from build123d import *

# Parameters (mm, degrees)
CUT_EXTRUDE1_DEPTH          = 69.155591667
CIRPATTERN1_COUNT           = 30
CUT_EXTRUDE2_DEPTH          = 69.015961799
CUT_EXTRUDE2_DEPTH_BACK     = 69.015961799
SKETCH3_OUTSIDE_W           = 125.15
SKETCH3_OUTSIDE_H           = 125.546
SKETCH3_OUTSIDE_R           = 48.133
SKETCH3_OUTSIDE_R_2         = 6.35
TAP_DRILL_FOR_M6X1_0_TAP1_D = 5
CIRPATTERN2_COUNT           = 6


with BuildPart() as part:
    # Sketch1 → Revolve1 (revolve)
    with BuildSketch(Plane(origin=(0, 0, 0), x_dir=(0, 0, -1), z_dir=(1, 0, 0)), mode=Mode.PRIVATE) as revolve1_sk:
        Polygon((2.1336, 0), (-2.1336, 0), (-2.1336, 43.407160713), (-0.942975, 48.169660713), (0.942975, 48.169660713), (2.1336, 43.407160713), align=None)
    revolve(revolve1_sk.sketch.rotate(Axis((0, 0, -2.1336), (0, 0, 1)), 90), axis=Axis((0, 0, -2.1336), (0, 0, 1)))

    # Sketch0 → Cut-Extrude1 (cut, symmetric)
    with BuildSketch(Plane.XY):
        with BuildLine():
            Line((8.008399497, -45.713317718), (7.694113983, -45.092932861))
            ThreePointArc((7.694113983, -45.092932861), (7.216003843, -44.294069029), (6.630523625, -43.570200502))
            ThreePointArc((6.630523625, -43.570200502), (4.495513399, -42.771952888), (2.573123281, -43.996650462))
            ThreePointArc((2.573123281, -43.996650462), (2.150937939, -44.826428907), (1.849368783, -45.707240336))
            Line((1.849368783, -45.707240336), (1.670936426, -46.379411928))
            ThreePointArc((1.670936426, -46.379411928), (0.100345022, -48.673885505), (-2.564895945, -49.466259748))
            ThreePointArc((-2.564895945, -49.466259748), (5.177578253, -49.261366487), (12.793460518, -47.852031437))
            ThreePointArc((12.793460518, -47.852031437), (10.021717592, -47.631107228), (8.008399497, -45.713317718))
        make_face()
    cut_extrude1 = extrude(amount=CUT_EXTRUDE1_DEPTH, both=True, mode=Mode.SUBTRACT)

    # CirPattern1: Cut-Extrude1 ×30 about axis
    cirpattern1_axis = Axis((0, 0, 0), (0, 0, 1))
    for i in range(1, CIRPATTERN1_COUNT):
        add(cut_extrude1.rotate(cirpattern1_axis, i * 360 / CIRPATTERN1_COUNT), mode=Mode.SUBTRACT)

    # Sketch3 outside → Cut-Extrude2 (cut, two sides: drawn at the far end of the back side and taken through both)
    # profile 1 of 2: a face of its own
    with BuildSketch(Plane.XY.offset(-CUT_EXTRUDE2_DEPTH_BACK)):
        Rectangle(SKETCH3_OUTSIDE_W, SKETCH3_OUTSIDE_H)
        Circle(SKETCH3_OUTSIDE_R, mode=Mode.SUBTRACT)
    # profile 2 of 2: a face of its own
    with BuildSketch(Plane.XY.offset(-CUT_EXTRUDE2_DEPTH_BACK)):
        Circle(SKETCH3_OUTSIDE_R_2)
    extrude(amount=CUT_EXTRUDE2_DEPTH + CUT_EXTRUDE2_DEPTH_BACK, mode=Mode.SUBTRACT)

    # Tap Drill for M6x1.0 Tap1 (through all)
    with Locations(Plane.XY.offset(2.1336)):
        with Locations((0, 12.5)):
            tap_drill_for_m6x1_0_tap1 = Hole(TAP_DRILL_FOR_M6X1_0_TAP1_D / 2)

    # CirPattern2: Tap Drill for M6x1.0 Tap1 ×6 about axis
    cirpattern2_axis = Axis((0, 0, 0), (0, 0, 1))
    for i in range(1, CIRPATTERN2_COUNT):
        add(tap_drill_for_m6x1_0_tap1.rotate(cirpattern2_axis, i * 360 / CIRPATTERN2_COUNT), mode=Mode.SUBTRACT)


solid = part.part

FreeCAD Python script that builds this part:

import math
import FreeCAD as App
import Part
import Sketcher
from FreeCAD import Vector
Q = App.Units.Quantity


def add_polygon(sketch, points):
    """Adds a closed chain of lines whose ends are joined by coincident constraints."""
    first, n = sketch.GeometryCount, len(points)
    for a, b in zip(points, points[1:] + points[:1]):
        sketch.addGeometry(Part.LineSegment(App.Vector(*a, 0), App.Vector(*b, 0)), False)
    for i in range(n):
        sketch.addConstraint(Sketcher.Constraint("Coincident", first + i, 2, first + (i + 1) % n, 1))

doc = App.newDocument("Part")
body = doc.addObject("PartDesign::Body", "Body")

sketch1 = body.newObject("Sketcher::SketchObject", "Sketch")
sketch1.AttachmentSupport = (doc.getObject("YZ_Plane"), [""])
sketch1.MapMode = "FlatFace"
add_polygon(sketch1, [(0, 2.1), (0, -2.1), (43.4, -2.1), (48.2, -0.9), (48.2, 0.9), (43.4, 2.1)])
sketch1.addConstraint([
    Sketcher.Constraint("Vertical", 0),
    Sketcher.Constraint("Horizontal", 1),
    Sketcher.Constraint("Vertical", 3),
    Sketcher.Constraint("Horizontal", 5),
    Sketcher.Constraint("Symmetric", 0, 2, 5, 2, -1, 1),
    Sketcher.Constraint("Vertical", 1, 2, 4, 2),
    Sketcher.Constraint("Equal", 2, 4),
    Sketcher.Constraint("DistanceY", 0, 2, 0, 1, Q("0.168 in")),
    Sketcher.Constraint("DistanceX", 1, 2, 2, 2, Q("0.1875 in")),
    Sketcher.Constraint("DistanceY", 1, 2, 2, 2, Q("0.046875 in")),
    Sketcher.Constraint("DistanceX", 1, 1, 1, 2, 43.407161),
])
revolution = body.newObject("PartDesign::Revolution", "Revolution")
revolution.Profile = sketch1
revolution.ReferenceAxis = (sketch1, ["V_Axis"])
revolution.Angle = 360

sketch2 = body.newObject("Sketcher::SketchObject", "Sketch001")
sketch2.AttachmentSupport = (doc.getObject("XY_Plane"), [""])
sketch2.MapMode = "FlatFace"
sketch2.addGeometry([
    Part.LineSegment(Vector(8, -45.7, 0), Vector(7.7, -45.1, 0)),
    Part.ArcOfCircle(Part.Circle(Vector(1.8, -48.1, 0), Vector(0, 0, 1), 6.6), math.radians(26.87), math.radians(43)),
    Part.ArcOfCircle(Part.Circle(Vector(4.8, -45.3, 0), Vector(0, 0, 1), 2.6), math.radians(43), math.radians(149)),
    Part.ArcOfCircle(Part.Circle(Vector(8.2, -47.4, 0), Vector(0, 0, 1), 6.6), math.radians(149), math.radians(165.13)),
    Part.LineSegment(Vector(1.8, -45.7, 0), Vector(1.7, -46.4, 0)),
    Part.ArcOfCircle(Part.Circle(Vector(-2.3, -45.3, 0), Vector(0, 0, 1), 4.2), math.radians(-93), math.radians(-15)),
    Part.ArcOfCircle(Part.Circle(Vector(0, 0, 0), Vector(0, 0, 1), 49.5), math.radians(-92.97), math.radians(-75.03)),
    Part.ArcOfCircle(Part.Circle(Vector(11.7, -43.8, 0), Vector(0, 0, 1), 4.2), math.radians(-153), math.radians(-75)),
], False)
sketch2.addConstraint([
    Sketcher.Constraint("Tangent", 0, 2, 1, 1),
    Sketcher.Constraint("Tangent", 1, 2, 2, 1),
    Sketcher.Constraint("Tangent", 2, 2, 3, 1),
    Sketcher.Constraint("Tangent", 3, 2, 4, 1),
    Sketcher.Constraint("Tangent", 4, 2, 5, 2),
    Sketcher.Constraint("Tangent", 5, 1, 6, 1),
    Sketcher.Constraint("Tangent", 6, 2, 7, 2),
    Sketcher.Constraint("Tangent", 7, 1, 0, 1),
    Sketcher.Constraint("Coincident", 6, 3, -1, 1),
    Sketcher.Constraint("Equal", 1, 3),
    Sketcher.Constraint("Equal", 5, 7),
    Sketcher.Constraint("Horizontal", 2, 3, 5, 3),
    Sketcher.Constraint("Equal", 0, 4),
    Sketcher.Constraint("Radius", 1, 6.6182),
    Sketcher.Constraint("Radius", 2, 2.5542),
    Sketcher.Constraint("DistanceX", 5, 3, 2, 3, Q("0.28 in")),
    Sketcher.Constraint("DistanceX", -1, 1, 2, 3, Q("0.1875 in")),
    Sketcher.Constraint("Radius", 5, 4.15968),
    Sketcher.Constraint("Radius", 6, 49.532712),
    Sketcher.Constraint("DistanceY", 1, 2, -1, 1, 43.570201),
    Sketcher.Constraint("DistanceX", -1, 1, 7, 1, 8.008399),
])
pocket1 = body.newObject("PartDesign::Pocket", "Pocket")
pocket1.Profile = sketch2
pocket1.Length = 138.311183
pocket1.Midplane = True
doc.recompute()

polarpattern = body.newObject("PartDesign::PolarPattern", "PolarPattern")
polarpattern.Originals = [pocket1]
polarpattern.Axis = (doc.getObject("Z_Axis"), [""])
polarpattern.Angle = 360
polarpattern.Occurrences = 30
body.Tip = polarpattern

sketch3 = body.newObject("Sketcher::SketchObject", "Sketch002")
sketch3.AttachmentSupport = (doc.getObject("XY_Plane"), [""])
sketch3.MapMode = "FlatFace"
add_polygon(sketch3, [(-63, 63), (-63, -63), (63, -63), (63, 63)])
sketch3.addGeometry(Part.Circle(Vector(0, 0, 0), Vector(0, 0, 1), 48), False)
sketch3.addGeometry(Part.Circle(Vector(0, 0, 0), Vector(0, 0, 1), 6), False)
sketch3.addConstraint([
    Sketcher.Constraint("Vertical", 0),
    Sketcher.Constraint("Horizontal", 1),
    Sketcher.Constraint("Vertical", 2),
    Sketcher.Constraint("Horizontal", 3),
    Sketcher.Constraint("Coincident", 4, 3, -1, 1),
    Sketcher.Constraint("Coincident", 5, 3, -1, 1),
    Sketcher.Constraint("Symmetric", 0, 2, 2, 2, -1, 1),
    Sketcher.Constraint("Diameter", 5, Q("0.5 in")),
    Sketcher.Constraint("Diameter", 4, Q("3.79 in")),
    Sketcher.Constraint("DistanceX", 1, 1, 1, 2, 125.15),
    Sketcher.Constraint("DistanceY", 0, 2, 0, 1, 125.546),
])
pocket2 = body.newObject("PartDesign::Pocket", "Pocket001")
pocket2.Profile = sketch3
pocket2.Type = "ThroughAll"
pocket2.Midplane = True

sketch4 = body.newObject("Sketcher::SketchObject", "Sketch003")
sketch4.AttachmentSupport = (doc.getObject("XY_Plane"), [""])
sketch4.MapMode = "FlatFace"
sketch4.AttachmentOffset = App.Placement(Vector(0, 0, 0.084 * 25.4), App.Rotation())
sketch4.addGeometry(Part.Circle(Vector(0, 12.5, 0), Vector(0, 0, 1), 2.5), False)
sketch4.addConstraint([
    Sketcher.Constraint("PointOnObject", 0, 3, -2),
    Sketcher.Constraint("Diameter", 0, 5.0),
    Sketcher.Constraint("DistanceY", -1, 1, 0, 3, 12.5),
])
doc.recompute()
hole = body.newObject("PartDesign::Hole", "Hole")
hole.Profile = sketch4
hole.ThreadType = "None"
hole.Diameter = 5
hole.DepthType = "ThroughAll"
doc.recompute()

polarpattern2 = body.newObject("PartDesign::PolarPattern", "PolarPattern001")
polarpattern2.Originals = [hole]
polarpattern2.Axis = (doc.getObject("Z_Axis"), [""])
polarpattern2.Angle = 360
polarpattern2.Occurrences = 6
body.Tip = polarpattern2

doc.recompute()
